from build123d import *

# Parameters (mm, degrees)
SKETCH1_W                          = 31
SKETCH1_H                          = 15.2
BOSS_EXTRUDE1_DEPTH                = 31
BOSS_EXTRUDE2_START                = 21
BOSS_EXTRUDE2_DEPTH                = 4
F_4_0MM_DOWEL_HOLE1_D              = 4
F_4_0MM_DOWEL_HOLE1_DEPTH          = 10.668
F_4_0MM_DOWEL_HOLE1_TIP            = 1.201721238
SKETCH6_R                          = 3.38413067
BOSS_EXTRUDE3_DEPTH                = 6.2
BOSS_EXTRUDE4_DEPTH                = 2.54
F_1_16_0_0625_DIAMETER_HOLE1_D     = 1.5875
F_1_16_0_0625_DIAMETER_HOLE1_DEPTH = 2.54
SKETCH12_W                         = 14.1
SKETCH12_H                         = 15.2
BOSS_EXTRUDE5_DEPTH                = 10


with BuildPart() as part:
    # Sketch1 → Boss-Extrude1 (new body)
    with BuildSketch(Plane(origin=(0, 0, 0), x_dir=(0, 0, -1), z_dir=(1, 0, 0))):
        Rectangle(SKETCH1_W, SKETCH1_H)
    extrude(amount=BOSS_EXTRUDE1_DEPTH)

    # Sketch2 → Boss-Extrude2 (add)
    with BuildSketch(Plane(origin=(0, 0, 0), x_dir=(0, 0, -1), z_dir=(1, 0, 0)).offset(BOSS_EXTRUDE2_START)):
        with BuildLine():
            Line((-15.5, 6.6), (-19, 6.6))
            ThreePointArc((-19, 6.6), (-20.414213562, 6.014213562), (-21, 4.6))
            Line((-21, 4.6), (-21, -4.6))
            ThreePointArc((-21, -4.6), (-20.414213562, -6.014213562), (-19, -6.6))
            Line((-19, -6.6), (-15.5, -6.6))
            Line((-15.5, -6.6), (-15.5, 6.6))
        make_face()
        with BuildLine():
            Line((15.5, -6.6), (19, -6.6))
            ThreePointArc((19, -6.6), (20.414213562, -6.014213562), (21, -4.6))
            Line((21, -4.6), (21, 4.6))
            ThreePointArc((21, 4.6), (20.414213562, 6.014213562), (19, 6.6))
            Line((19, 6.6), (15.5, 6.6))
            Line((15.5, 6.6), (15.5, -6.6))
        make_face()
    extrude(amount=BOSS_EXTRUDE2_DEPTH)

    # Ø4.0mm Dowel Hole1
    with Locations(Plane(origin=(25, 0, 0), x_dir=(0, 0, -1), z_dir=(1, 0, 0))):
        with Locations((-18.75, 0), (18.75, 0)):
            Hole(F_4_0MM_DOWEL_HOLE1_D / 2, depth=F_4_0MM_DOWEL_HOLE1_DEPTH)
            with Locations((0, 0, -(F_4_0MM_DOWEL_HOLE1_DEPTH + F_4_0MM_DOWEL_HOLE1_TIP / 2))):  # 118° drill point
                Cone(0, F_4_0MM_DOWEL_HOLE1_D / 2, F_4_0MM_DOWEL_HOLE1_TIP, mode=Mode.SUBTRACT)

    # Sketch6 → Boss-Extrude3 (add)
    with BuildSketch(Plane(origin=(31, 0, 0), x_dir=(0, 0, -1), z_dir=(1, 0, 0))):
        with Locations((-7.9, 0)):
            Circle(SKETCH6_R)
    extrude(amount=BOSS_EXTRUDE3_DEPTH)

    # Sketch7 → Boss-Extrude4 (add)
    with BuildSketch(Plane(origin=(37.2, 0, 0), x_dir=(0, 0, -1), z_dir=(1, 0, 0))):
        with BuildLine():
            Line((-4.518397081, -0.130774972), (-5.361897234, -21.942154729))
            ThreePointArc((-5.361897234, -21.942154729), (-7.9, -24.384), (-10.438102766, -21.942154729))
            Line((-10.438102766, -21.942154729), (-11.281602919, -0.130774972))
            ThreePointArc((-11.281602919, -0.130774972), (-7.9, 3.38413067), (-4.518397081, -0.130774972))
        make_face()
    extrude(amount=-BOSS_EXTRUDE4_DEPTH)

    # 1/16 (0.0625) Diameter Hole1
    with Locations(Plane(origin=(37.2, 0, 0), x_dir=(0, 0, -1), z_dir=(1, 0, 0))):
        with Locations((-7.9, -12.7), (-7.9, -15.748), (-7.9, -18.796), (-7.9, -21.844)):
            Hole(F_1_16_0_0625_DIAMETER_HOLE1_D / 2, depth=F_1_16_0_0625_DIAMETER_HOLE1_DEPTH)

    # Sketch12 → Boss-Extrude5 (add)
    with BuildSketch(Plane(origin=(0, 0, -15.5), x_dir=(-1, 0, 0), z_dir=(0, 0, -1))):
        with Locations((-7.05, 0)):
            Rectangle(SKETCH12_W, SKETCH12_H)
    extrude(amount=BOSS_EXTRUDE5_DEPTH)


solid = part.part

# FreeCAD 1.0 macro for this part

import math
import FreeCAD as App
import Part
import Sketcher
from FreeCAD import Vector
Q = App.Units.Quantity

doc = App.newDocument("Part")
params = doc.addObject("Spreadsheet::Sheet", "Params")
for row, (alias, value) in enumerate([
    ("sketch1_height", "31 mm"),
    ("sketch1_width", "15.2 mm"),
    ("pad1_length", "31 mm"),
    ("sketch2_radius", "2 mm"),
    ("sketch2_width", "9.2 mm"),
    ("sketch2_height", "3.5 mm"),
    ("pad2_length", "4 mm"),
    ("sketch3_diameter", "4 mm"),
    ("hole_diameter", "4 mm"),
    ("hole_depth", "10.668 mm"),
    ("pad3_length", "6.2 mm"),
    ("sketch5_radius", "2.54 mm"),
    ("pad4_length", "2.54 mm"),
    ("hole2_diameter", "1.5875 mm"),
    ("hole2_depth", "2.54 mm"),
    ("sketch7_width", "14.1 mm"),
    ("sketch7_height", "15.2 mm"),
    ("pad5_length", "10 mm"),
], start=1):
    params.set(f"A{row}", alias)
    params.set(f"B{row}", "=" + value)
    params.setAlias(f"B{row}", alias)

body = doc.addObject("PartDesign::Body", "Body")

# Sketch on YZ plane
sketch1 = doc.addObject("Sketcher::SketchObject", "Sketch")
body.addObject(sketch1)
sketch1.AttachmentSupport = (doc.YZ_Plane, [""])
sketch1.MapMode = "FlatFace"
sketch1.addGeometry([
    Part.LineSegment(Vector(8, 16, 0), Vector(-8, 16, 0)),
    Part.LineSegment(Vector(-8, 16, 0), Vector(-8, -16, 0)),
    Part.LineSegment(Vector(-8, -16, 0), Vector(8, -16, 0)),
    Part.LineSegment(Vector(8, -16, 0), Vector(8, 16, 0)),
], False)
sketch1.addConstraint([
    Sketcher.Constraint("Coincident", 0, 2, 1, 1),
    Sketcher.Constraint("Coincident", 1, 2, 2, 1),
    Sketcher.Constraint("Coincident", 2, 2, 3, 1),
    Sketcher.Constraint("Coincident", 3, 2, 0, 1),
    Sketcher.Constraint("Horizontal", 0),
    Sketcher.Constraint("Vertical", 1),
    Sketcher.Constraint("Horizontal", 2),
    Sketcher.Constraint("Vertical", 3),
    Sketcher.Constraint("Symmetric", 0, 2, 2, 2, -1, 1),
    Sketcher.Constraint("DistanceY", 1, 2, 1, 1, Q("31 mm")),
    Sketcher.Constraint("DistanceX", 0, 2, 0, 1, Q("15.2 mm")),
])
sketch1.setExpression("Constraints[9]", "Params.sketch1_height")
sketch1.setExpression("Constraints[10]", "Params.sketch1_width")
pad1 = doc.addObject("PartDesign::Pad", "Pad")
body.addObject(pad1)
pad1.Profile = sketch1
pad1.setExpression("Length", "Params.pad1_length")

# Sketch on YZ plane
sketch2 = doc.addObject("Sketcher::SketchObject", "Sketch001")
body.addObject(sketch2)
sketch2.AttachmentSupport = (doc.YZ_Plane, [""])
sketch2.MapMode = "FlatFace"
sketch2.AttachmentOffset = App.Placement(Vector(0, 0, 21), App.Rotation())
sketch2.addGeometry([
    Part.LineSegment(Vector(6.6, 15.5, 0), Vector(6.6, 19, 0)),  # 0
    Part.ArcOfCircle(Part.Circle(Vector(4.6, 19, 0), Vector(0, 0, 1), 2), math.radians(0), math.radians(90)),  # 1
    Part.LineSegment(Vector(4.6, 21, 0), Vector(-4.6, 21, 0)),  # 2
    Part.ArcOfCircle(Part.Circle(Vector(-4.6, 19, 0), Vector(0, 0, 1), 2), math.radians(90), math.radians(180)),  # 3
    Part.LineSegment(Vector(-6.6, 19, 0), Vector(-6.6, 15.5, 0)),  # 4
    Part.LineSegment(Vector(-6.6, 15.5, 0), Vector(6.6, 15.5, 0)),  # 5
    Part.LineSegment(Vector(-6.6, -15.5, 0), Vector(-6.6, -19, 0)),  # 6
    Part.ArcOfCircle(Part.Circle(Vector(-4.6, -19, 0), Vector(0, 0, 1), 2), math.radians(-180), math.radians(-90)),  # 7
    Part.LineSegment(Vector(-4.6, -21, 0), Vector(4.6, -21, 0)),  # 8
    Part.ArcOfCircle(Part.Circle(Vector(4.6, -19, 0), Vector(0, 0, 1), 2), math.radians(-90), math.radians(0)),  # 9
    Part.LineSegment(Vector(6.6, -19, 0), Vector(6.6, -15.5, 0)),  # 10
    Part.LineSegment(Vector(6.6, -15.5, 0), Vector(-6.6, -15.5, 0)),  # 11
], False)
sketch2.addConstraint([
    Sketcher.Constraint("Tangent", 0, 2, 1, 1),
    Sketcher.Constraint("Tangent", 1, 2, 2, 1),
    Sketcher.Constraint("Tangent", 2, 2, 3, 1),
    Sketcher.Constraint("Tangent", 3, 2, 4, 1),
    Sketcher.Constraint("Coincident", 4, 2, 5, 1),
    Sketcher.Constraint("Coincident", 5, 2, 0, 1),
    Sketcher.Constraint("Tangent", 6, 2, 7, 1),
    Sketcher.Constraint("Tangent", 7, 2, 8, 1),
    Sketcher.Constraint("Tangent", 8, 2, 9, 1),
    Sketcher.Constraint("Tangent", 9, 2, 10, 1),
    Sketcher.Constraint("Coincident", 10, 2, 11, 1),
    Sketcher.Constraint("Coincident", 11, 2, 6, 1),
    Sketcher.Constraint("Vertical", 0),
    Sketcher.Constraint("Horizontal", 2),
    Sketcher.Constraint("Vertical", 4),
    Sketcher.Constraint("Horizontal", 5),
    Sketcher.Constraint("Vertical", 6),
    Sketcher.Constraint("Horizontal", 8),
    Sketcher.Constraint("Vertical", 10),
    Sketcher.Constraint("Horizontal", 11),
    Sketcher.Constraint("Equal", 1, 3),
    Sketcher.Constraint("Equal", 3, 7),
    Sketcher.Constraint("Equal", 7, 9),
    Sketcher.Constraint("Symmetric", 1, 3, 7, 3, -1, 1),
    Sketcher.Constraint("Symmetric", 4, 2, 10, 2, -1, 1),
    Sketcher.Constraint("Vertical", 3, 3, 7, 3),
    Sketcher.Constraint("Radius", 1, Q("2 mm")),
    Sketcher.Constraint("DistanceX", 2, 2, 2, 1, Q("9.2 mm")),
    Sketcher.Constraint("DistanceY", 0, 1, 0, 2, Q("3.5 mm")),
    Sketcher.Constraint("DistanceY", -1, 1, 1, 3, Q("19 mm")),
])
sketch2.setExpression("Constraints[26]", "Params.sketch2_radius")
sketch2.setExpression("Constraints[27]", "Params.sketch2_width")
sketch2.setExpression("Constraints[28]", "Params.sketch2_height")
pad2 = doc.addObject("PartDesign::Pad", "Pad001")
body.addObject(pad2)
pad2.Profile = sketch2
pad2.setExpression("Length", "Params.pad2_length")

# Sketch on YZ plane
sketch3 = doc.addObject("Sketcher::SketchObject", "Sketch002")
body.addObject(sketch3)
sketch3.AttachmentSupport = (doc.YZ_Plane, [""])
sketch3.MapMode = "FlatFace"
sketch3.AttachmentOffset = App.Placement(Vector(0, 0, 25), App.Rotation())
sketch3.addGeometry([
    Part.Circle(Vector(0, 18.8, 0), Vector(0, 0, 1), 2),
    Part.Circle(Vector(0, -18.8, 0), Vector(0, 0, 1), 2),
], False)
sketch3.addConstraint([
    Sketcher.Constraint("Equal", 0, 1),
    Sketcher.Constraint("Symmetric", 0, 3, 1, 3, -1, 1),
    Sketcher.Constraint("PointOnObject", 0, 3, -2),
    Sketcher.Constraint("Diameter", 0, Q("4 mm")),
    Sketcher.Constraint("DistanceY", 1, 3, 0, 3, Q("37.5 mm")),
])
sketch3.setExpression("Constraints[3]", "Params.sketch3_diameter")
doc.recompute()
hole = doc.addObject("PartDesign::Hole", "Hole")
body.addObject(hole)
hole.Profile = sketch3
hole.ThreadType = "None"
hole.setExpression("Diameter", "Params.hole_diameter")
hole.DepthType = "Dimension"
hole.setExpression("Depth", "Params.hole_depth")
hole.DrillPoint = "Angled"
hole.DrillPointAngle = 118

# Sketch on YZ plane
sketch4 = doc.addObject("Sketcher::SketchObject", "Sketch003")
body.addObject(sketch4)
sketch4.AttachmentSupport = (doc.YZ_Plane, [""])
sketch4.MapMode = "FlatFace"
sketch4.AttachmentOffset = App.Placement(Vector(0, 0, 31), App.Rotation())
sketch4.addGeometry(Part.Circle(Vector(0, 7.9, 0), Vector(0, 0, 1), 3.4), False)
sketch4.addConstraint([
    Sketcher.Constraint("PointOnObject", 0, 3, -2),
    Sketcher.Constraint("DistanceY", -1, 1, 0, 3, Q("7.9 mm")),
    Sketcher.Constraint("Diameter", 0, Q("6.768261 mm")),
])
pad3 = doc.addObject("PartDesign::Pad", "Pad002")
body.addObject(pad3)
pad3.Profile = sketch4
pad3.setExpression("Length", "Params.pad3_length")

# Sketch on YZ plane
sketch5 = doc.addObject("Sketcher::SketchObject", "Sketch004")
body.addObject(sketch5)
sketch5.AttachmentSupport = (doc.YZ_Plane, [""])
sketch5.MapMode = "FlatFace"
sketch5.AttachmentOffset = App.Placement(Vector(0, 0, 37.2), App.Rotation())
sketch5.addGeometry([
    Part.LineSegment(Vector(-21.9, 5.4, 0), Vector(-0.1, 4.5, 0)),
    Part.ArcOfCircle(Part.Circle(Vector(0, 7.9, 0), Vector(0, 0, 1), 3.4), math.radians(-92), math.radians(92)),
    Part.LineSegment(Vector(-0.1, 11.3, 0), Vector(-21.9, 10.4, 0)),
    Part.ArcOfCircle(Part.Circle(Vector(-21.8, 7.9, 0), Vector(0, 0, 1), 2.5), math.radians(92), math.radians(268)),
], False)
sketch5.addConstraint([
    Sketcher.Constraint("Tangent", 0, 2, 1, 1),
    Sketcher.Constraint("Tangent", 1, 2, 2, 1),
    Sketcher.Constraint("Tangent", 2, 2, 3, 1),
    Sketcher.Constraint("Tangent", 3, 2, 0, 1),
    Sketcher.Constraint("PointOnObject", 1, 3, -2),
    Sketcher.Constraint("Horizontal", 1, 3, 3, 3),
    Sketcher.Constraint("Radius", 3, Q("2.54 mm")),
    Sketcher.Constraint("DistanceY", -1, 1, 1, 3, Q("7.9 mm")),
    Sketcher.Constraint("Radius", 1, Q("3.384131 mm")),
    Sketcher.Constraint("DistanceX", 3, 3, -1, 1, Q("21.844 mm")),
])
sketch5.setExpression("Constraints[6]", "Params.sketch5_radius")
pad4 = doc.addObject("PartDesign::Pad", "Pad003")
body.addObject(pad4)
pad4.Profile = sketch5
pad4.setExpression("Length", "Params.pad4_length")
pad4.Reversed = True

# Sketch on YZ plane
sketch6 = doc.addObject("Sketcher::SketchObject", "Sketch005")
body.addObject(sketch6)
sketch6.AttachmentSupport = (doc.YZ_Plane, [""])
sketch6.MapMode = "FlatFace"
sketch6.AttachmentOffset = App.Placement(Vector(0, 0, 37.2), App.Rotation())
sketch6.addGeometry([
    Part.Circle(Vector(-12.7, 7.9, 0), Vector(0, 0, 1), 0.8),
    Part.Circle(Vector(-15.7, 7.9, 0), Vector(0, 0, 1), 0.8),
    Part.Circle(Vector(-18.8, 7.9, 0), Vector(0, 0, 1), 0.8),
    Part.Circle(Vector(-21.8, 7.9, 0), Vector(0, 0, 1), 0.8),
], False)
sketch6.addConstraint([
    Sketcher.Constraint("Equal", 0, 1),
    Sketcher.Constraint("Equal", 1, 2),
    Sketcher.Constraint("Equal", 2, 3),
    Sketcher.Constraint("Horizontal", 0, 3, 1, 3),
    Sketcher.Constraint("Horizontal", 1, 3, 2, 3),
    Sketcher.Constraint("Horizontal", 2, 3, 3, 3),
    Sketcher.Constraint("Diameter", 0, Q("1.5875 mm")),
    Sketcher.Constraint("DistanceX", 0, 3, -1, 1, Q("12.7 mm")),
    Sketcher.Constraint("DistanceY", -1, 1, 0, 3, Q("7.9 mm")),
    Sketcher.Constraint("DistanceX", 1, 3, -1, 1, Q("15.748 mm")),
    Sketcher.Constraint("DistanceX", 2, 3, -1, 1, Q("18.796 mm")),
    Sketcher.Constraint("DistanceX", 3, 3, -1, 1, Q("21.844 mm")),
])
doc.recompute()
hole2 = doc.addObject("PartDesign::Hole", "Hole001")
body.addObject(hole2)
hole2.Profile = sketch6
hole2.ThreadType = "None"
hole2.setExpression("Diameter", "Params.hole2_diameter")
hole2.DepthType = "Dimension"
hole2.setExpression("Depth", "Params.hole2_depth")
hole2.DrillPoint = "Flat"

# Sketch on XY plane
sketch7 = doc.addObject("Sketcher::SketchObject", "Sketch006")
body.addObject(sketch7)
sketch7.AttachmentSupport = (doc.XY_Plane, [""])
sketch7.MapMode = "FlatFace"
sketch7.AttachmentOffset = App.Placement(Vector(0, 0, -15.5), App.Rotation())
sketch7.addGeometry([
    Part.LineSegment(Vector(14, 8, 0), Vector(14, -8, 0)),
    Part.LineSegment(Vector(14, -8, 0), Vector(0, -8, 0)),
    Part.LineSegment(Vector(0, -8, 0), Vector(0, 8, 0)),
    Part.LineSegment(Vector(0, 8, 0), Vector(14, 8, 0)),
], False)
sketch7.addConstraint([
    Sketcher.Constraint("Coincident", 0, 2, 1, 1),
    Sketcher.Constraint("Coincident", 1, 2, 2, 1),
    Sketcher.Constraint("Coincident", 2, 2, 3, 1),
    Sketcher.Constraint("Coincident", 3, 2, 0, 1),
    Sketcher.Constraint("Vertical", 0),
    Sketcher.Constraint("Horizontal", 1),
    Sketcher.Constraint("Vertical", 2),
    Sketcher.Constraint("Horizontal", 3),
    Sketcher.Constraint("Symmetric", 1, 2, 2, 2, -1, 1),
    Sketcher.Constraint("DistanceX", 1, 2, 1, 1, Q("14.1 mm")),
    Sketcher.Constraint("DistanceY", 0, 2, 0, 1, Q("15.2 mm")),
])
sketch7.setExpression("Constraints[9]", "Params.sketch7_width")
sketch7.setExpression("Constraints[10]", "Params.sketch7_height")
pad5 = doc.addObject("PartDesign::Pad", "Pad004")
body.addObject(pad5)
pad5.Profile = sketch7
pad5.setExpression("Length", "Params.pad5_length")
pad5.Reversed = True

doc.recompute()
